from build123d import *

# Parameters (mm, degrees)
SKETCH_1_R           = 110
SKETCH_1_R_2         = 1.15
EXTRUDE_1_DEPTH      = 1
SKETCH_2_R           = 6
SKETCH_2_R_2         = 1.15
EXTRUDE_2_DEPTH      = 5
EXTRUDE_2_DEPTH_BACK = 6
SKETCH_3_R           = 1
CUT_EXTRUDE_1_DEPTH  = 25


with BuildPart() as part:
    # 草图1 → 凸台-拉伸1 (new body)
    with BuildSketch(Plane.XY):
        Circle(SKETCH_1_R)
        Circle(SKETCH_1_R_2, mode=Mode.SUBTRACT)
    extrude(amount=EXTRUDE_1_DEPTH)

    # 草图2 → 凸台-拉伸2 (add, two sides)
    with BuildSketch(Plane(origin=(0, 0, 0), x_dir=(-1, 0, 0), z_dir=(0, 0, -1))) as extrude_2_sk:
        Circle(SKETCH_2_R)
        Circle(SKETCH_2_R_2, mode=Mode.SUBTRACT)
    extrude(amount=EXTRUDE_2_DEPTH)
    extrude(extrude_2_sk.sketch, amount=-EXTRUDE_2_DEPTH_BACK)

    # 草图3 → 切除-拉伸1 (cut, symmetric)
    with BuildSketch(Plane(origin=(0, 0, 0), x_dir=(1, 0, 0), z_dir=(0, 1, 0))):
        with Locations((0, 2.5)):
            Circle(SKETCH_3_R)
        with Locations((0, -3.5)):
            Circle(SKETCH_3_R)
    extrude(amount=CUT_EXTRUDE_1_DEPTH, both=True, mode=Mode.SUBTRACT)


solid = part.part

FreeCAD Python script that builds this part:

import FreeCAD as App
import Part
import Sketcher
Q = App.Units.Quantity

doc = App.newDocument("Part")
body = doc.addObject("PartDesign::Body", "Body")

sketch1 = body.newObject("Sketcher::SketchObject", "Sketch")
sketch1.AttachmentSupport = (doc.getObject("XY_Plane"), [""])
sketch1.MapMode = "FlatFace"
sketch1.addGeometry([
    Part.Circle(App.Vector(0, 0, 0), App.Vector(0, 0, 1), 110),
    Part.Circle(App.Vector(0, 0, 0), App.Vector(0, 0, 1), 1.1),
], False)
sketch1.addConstraint([
    Sketcher.Constraint("Coincident", 0, 3, -1, 1),
    Sketcher.Constraint("Coincident", 1, 3, -1, 1),
    Sketcher.Constraint("Diameter", 0, Q("220 mm")),
    Sketcher.Constraint("Diameter", 1, Q("2.3 mm")),
])
pad1 = body.newObject("PartDesign::Pad", "Pad")
pad1.Profile = sketch1
pad1.Length = 1

sketch2 = body.newObject("Sketcher::SketchObject", "Sketch001")
sketch2.AttachmentSupport = (doc.getObject("XY_Plane"), [""])
sketch2.MapMode = "FlatFace"
sketch2.addGeometry([
    Part.Circle(App.Vector(0, 0, 0), App.Vector(0, 0, 1), 6),
    Part.Circle(App.Vector(0, 0, 0), App.Vector(0, 0, 1), 1.1),
], False)
sketch2.addConstraint([
    Sketcher.Constraint("Coincident", 0, 3, -1, 1),
    Sketcher.Constraint("Coincident", 1, 3, -1, 1),
    Sketcher.Constraint("Diameter", 0, Q("12 mm")),
    Sketcher.Constraint("Diameter", 1, Q("2.3 mm")),
])
pad2 = body.newObject("PartDesign::Pad", "Pad001")
pad2.Profile = sketch2
pad2.Type = "TwoLengths"
pad2.Length = 5
pad2.Length2 = 6
pad2.Reversed = True

sketch3 = body.newObject("Sketcher::SketchObject", "Sketch002")
sketch3.AttachmentSupport = (doc.getObject("XZ_Plane"), [""])
sketch3.MapMode = "FlatFace"
sketch3.addGeometry([
    Part.Circle(App.Vector(0, -2.5, 0), App.Vector(0, 0, 1), 1),
    Part.Circle(App.Vector(0, 3.5, 0), App.Vector(0, 0, 1), 1),
], False)
sketch3.addConstraint([
    Sketcher.Constraint("Equal", 0, 1),
    Sketcher.Constraint("PointOnObject", 0, 3, -2),
    Sketcher.Constraint("PointOnObject", 1, 3, -2),
    Sketcher.Constraint("Diameter", 0, Q("2 mm")),
    Sketcher.Constraint("DistanceY", 0, 3, 1, 3, Q("6 mm")),
    Sketcher.Constraint("DistanceY", 0, 3, -1, 1, Q("2.5 mm")),
])
pocket1 = body.newObject("PartDesign::Pocket", "Pocket")
pocket1.Profile = sketch3
pocket1.Length = 50
pocket1.Midplane = True

doc.recompute()
